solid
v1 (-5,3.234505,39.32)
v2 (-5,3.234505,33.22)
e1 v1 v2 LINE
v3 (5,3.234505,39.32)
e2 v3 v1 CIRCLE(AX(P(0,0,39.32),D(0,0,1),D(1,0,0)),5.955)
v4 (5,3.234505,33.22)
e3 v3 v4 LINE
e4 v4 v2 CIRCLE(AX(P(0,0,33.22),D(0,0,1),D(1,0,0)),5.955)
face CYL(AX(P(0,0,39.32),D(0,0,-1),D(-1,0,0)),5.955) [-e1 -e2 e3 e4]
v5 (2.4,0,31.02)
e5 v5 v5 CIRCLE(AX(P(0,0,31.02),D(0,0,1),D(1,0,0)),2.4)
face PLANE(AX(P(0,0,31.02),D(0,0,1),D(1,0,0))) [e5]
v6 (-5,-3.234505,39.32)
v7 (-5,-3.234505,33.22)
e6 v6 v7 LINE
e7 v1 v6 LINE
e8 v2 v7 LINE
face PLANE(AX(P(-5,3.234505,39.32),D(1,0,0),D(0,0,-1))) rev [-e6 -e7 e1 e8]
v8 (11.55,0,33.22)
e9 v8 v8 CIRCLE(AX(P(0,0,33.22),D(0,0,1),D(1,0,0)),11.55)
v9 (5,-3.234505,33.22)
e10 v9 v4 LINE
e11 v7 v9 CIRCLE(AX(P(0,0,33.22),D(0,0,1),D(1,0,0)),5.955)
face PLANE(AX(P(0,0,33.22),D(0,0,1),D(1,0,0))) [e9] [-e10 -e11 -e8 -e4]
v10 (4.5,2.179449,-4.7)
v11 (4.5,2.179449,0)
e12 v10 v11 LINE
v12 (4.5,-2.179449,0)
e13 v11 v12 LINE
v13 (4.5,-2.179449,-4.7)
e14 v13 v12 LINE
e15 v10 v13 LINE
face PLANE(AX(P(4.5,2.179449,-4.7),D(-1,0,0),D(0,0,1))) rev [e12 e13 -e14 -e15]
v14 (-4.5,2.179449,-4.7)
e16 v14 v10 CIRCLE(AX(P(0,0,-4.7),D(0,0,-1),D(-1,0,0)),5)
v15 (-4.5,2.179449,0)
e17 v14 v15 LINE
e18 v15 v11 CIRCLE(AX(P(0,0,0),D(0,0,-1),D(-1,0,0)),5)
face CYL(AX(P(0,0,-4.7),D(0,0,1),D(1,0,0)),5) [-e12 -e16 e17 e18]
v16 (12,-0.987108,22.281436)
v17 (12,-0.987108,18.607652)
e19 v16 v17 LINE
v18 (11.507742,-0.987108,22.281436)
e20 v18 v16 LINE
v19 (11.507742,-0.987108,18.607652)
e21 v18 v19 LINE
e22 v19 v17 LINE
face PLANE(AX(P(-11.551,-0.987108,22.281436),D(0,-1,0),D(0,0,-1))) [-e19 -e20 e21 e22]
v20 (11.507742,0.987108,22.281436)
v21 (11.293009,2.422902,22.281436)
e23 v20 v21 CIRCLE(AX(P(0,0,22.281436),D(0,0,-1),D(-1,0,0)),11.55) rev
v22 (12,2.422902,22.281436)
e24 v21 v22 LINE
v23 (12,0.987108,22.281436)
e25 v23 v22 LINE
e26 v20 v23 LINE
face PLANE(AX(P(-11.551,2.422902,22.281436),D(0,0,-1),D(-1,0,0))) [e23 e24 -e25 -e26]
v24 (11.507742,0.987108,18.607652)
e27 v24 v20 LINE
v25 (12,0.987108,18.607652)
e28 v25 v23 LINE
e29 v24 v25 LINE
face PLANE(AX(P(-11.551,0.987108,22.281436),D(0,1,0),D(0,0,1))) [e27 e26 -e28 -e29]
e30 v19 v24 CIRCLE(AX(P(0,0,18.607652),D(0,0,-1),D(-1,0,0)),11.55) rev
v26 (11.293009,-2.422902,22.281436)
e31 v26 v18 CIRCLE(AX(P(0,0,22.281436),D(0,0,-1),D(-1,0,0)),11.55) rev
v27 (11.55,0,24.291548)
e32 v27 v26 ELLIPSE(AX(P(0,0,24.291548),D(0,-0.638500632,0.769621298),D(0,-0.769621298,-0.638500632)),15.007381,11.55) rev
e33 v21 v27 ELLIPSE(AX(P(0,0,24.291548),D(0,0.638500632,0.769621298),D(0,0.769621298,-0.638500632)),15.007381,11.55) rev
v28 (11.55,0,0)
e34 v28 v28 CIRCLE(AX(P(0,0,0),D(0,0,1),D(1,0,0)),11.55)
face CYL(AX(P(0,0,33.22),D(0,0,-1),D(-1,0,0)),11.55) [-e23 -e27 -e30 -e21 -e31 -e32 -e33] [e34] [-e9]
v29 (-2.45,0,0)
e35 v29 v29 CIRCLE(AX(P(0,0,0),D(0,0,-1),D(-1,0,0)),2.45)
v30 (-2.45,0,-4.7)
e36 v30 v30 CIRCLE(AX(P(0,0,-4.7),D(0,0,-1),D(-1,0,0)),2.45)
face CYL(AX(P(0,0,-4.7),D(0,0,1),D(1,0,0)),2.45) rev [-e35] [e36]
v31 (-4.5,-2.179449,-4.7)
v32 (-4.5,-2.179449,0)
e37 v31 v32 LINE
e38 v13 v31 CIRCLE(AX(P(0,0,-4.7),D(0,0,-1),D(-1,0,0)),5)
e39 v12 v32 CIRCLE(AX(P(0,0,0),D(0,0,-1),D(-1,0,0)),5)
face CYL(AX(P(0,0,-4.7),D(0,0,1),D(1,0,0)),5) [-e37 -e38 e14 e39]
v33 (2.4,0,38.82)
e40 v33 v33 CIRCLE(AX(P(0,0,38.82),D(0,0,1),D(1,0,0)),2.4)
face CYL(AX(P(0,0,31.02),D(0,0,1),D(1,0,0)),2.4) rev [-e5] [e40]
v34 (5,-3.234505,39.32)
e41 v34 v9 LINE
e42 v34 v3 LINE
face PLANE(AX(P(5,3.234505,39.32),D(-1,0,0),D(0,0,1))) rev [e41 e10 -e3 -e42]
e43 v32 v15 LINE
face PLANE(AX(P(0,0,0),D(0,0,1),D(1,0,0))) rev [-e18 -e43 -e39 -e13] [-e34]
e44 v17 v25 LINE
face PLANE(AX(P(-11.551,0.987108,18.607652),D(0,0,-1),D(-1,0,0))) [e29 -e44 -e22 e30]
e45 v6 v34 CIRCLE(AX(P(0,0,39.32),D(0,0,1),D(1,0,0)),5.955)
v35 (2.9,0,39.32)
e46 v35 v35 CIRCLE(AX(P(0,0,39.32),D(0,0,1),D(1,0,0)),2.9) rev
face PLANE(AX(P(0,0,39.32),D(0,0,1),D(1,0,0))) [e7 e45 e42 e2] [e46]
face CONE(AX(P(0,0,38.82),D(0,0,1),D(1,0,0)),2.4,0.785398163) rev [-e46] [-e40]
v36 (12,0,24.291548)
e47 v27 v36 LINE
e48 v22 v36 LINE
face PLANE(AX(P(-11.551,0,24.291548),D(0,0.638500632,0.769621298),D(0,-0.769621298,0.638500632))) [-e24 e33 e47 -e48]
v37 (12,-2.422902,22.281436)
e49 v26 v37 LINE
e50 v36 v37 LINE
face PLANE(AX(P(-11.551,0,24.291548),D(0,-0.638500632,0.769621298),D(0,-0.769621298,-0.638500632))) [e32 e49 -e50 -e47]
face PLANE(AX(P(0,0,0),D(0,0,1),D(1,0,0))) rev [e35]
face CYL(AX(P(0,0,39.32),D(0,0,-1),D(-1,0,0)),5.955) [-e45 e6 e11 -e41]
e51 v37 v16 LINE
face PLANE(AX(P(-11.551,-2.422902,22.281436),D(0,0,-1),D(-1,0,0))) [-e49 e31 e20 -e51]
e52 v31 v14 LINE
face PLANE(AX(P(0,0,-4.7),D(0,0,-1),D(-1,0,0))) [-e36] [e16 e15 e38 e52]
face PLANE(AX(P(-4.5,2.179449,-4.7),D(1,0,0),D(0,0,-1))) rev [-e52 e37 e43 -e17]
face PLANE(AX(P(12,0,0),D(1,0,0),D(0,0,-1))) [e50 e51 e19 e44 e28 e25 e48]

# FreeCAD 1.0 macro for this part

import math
import FreeCAD as App
import Part
import Sketcher

V = App.Vector


def edges_at(feature, points):
    """Names of the edges that pass closest to the given points."""
    edges = feature.Shape.Edges
    near = lambda p: min(range(len(edges)), key=lambda i: edges[i].distToShape(Part.Vertex(*p))[0])
    return sorted({f"Edge{near(p) + 1}" for p in points})


def add_polygon(sketch, points):
    """Adds a closed chain of lines whose ends are joined by coincident constraints."""
    first, n = sketch.GeometryCount, len(points)
    for a, b in zip(points, points[1:] + points[:1]):
        sketch.addGeometry(Part.LineSegment(App.Vector(*a, 0), App.Vector(*b, 0)), False)
    for i in range(n):
        sketch.addConstraint(Sketcher.Constraint("Coincident", first + i, 2, first + (i + 1) % n, 1))

doc = App.newDocument("Part")
params = doc.addObject("Spreadsheet::Sheet", "Params")
for row, (alias, value) in enumerate([
    ("sketch1_diameter", "23.1 mm"),
    ("pad1_length", "33.22 mm"),
    ("pad2_length", "6.1 mm"),
    ("sketch3_diameter", "4.8 mm"),
    ("pocket1_length", "8.3 mm"),
    ("chamfer_size", "0.5 mm"),
    ("sketch4_radius", "5 mm"),
    ("sketch4_diameter", "4.9 mm"),
    ("pad3_length", "4.7 mm"),
    ("pad4_length", "0.706991 mm"),
], start=1):
    params.set(f"A{row}", alias)
    params.set(f"B{row}", "=" + value)
    params.setAlias(f"B{row}", alias)

body = doc.addObject("PartDesign::Body", "Body")

# Sketch on XY plane
sketch1 = body.newObject("Sketcher::SketchObject", "Sketch")
sketch1.AttachmentSupport = (doc.getObject("XY_Plane"), [""])
sketch1.MapMode = "FlatFace"
sketch1.addGeometry(Part.Circle(V(0, 0, 0), V(0, 0, 1), 12), False)
sketch1.addConstraint([
    Sketcher.Constraint("Coincident", 0, 3, -1, 1),
    Sketcher.Constraint("Diameter", 0, 23.1),
])
sketch1.setExpression("Constraints[1]", "Params.sketch1_diameter")
pad1 = body.newObject("PartDesign::Pad", "Pad")
pad1.Profile = sketch1
pad1.setExpression("Length", "Params.pad1_length")

# Sketch on XY plane
sketch2 = body.newObject("Sketcher::SketchObject", "Sketch001")
sketch2.AttachmentSupport = (doc.getObject("XY_Plane"), [""])
sketch2.MapMode = "FlatFace"
sketch2.AttachmentOffset = App.Placement(V(0, 0, 33.22), App.Rotation())
sketch2.addGeometry([
    Part.LineSegment(V(5, -3, 0), V(5, 3, 0)),
    Part.ArcOfCircle(Part.Circle(V(0, 0, 0), V(0, 0, 1), 6), math.radians(33), math.radians(147)),
    Part.LineSegment(V(-5, 3, 0), V(-5, -3, 0)),
    Part.ArcOfCircle(Part.Circle(V(0, 0, 0), V(0, 0, 1), 6), math.radians(-147), math.radians(-33)),
], False)
sketch2.addConstraint([
    Sketcher.Constraint("Coincident", 0, 2, 1, 1),
    Sketcher.Constraint("Coincident", 1, 2, 2, 1),
    Sketcher.Constraint("Coincident", 2, 2, 3, 1),
    Sketcher.Constraint("Coincident", 3, 2, 0, 1),
    Sketcher.Constraint("Vertical", 0),
    Sketcher.Constraint("Vertical", 2),
    Sketcher.Constraint("Coincident", 1, 3, -1, 1),
    Sketcher.Constraint("Coincident", 3, 3, -1, 1),
    Sketcher.Constraint("Equal", 1, 3),
    Sketcher.Constraint("Horizontal", 0, 2, 1, 2),
    Sketcher.Constraint("DistanceX", -1, 1, 0, 2, 5.0),
    Sketcher.Constraint("Radius", 1, 5.955),
])
pad2 = body.newObject("PartDesign::Pad", "Pad001")
pad2.Profile = sketch2
pad2.setExpression("Length", "Params.pad2_length")

# Sketch on XY plane
sketch3 = body.newObject("Sketcher::SketchObject", "Sketch002")
sketch3.AttachmentSupport = (doc.getObject("XY_Plane"), [""])
sketch3.MapMode = "FlatFace"
sketch3.AttachmentOffset = App.Placement(V(0, 0, 39.32), App.Rotation())
sketch3.addGeometry(Part.Circle(V(0, 0, 0), V(0, 0, 1), 2.4), False)
sketch3.addConstraint([
    Sketcher.Constraint("Coincident", 0, 3, -1, 1),
    Sketcher.Constraint("Diameter", 0, 4.8),
])
sketch3.setExpression("Constraints[1]", "Params.sketch3_diameter")
pocket1 = body.newObject("PartDesign::Pocket", "Pocket")
pocket1.Profile = sketch3
pocket1.setExpression("Length", "Params.pocket1_length")
doc.recompute()

chamfer = body.newObject("PartDesign::Chamfer", "Chamfer")
chamfer.Base = (pocket1, edges_at(pocket1, [(-2.4, 0, 39.32)]))
chamfer.setExpression("Size", "Params.chamfer_size")

# Sketch on XY plane
sketch4 = body.newObject("Sketcher::SketchObject", "Sketch003")
sketch4.AttachmentSupport = (doc.getObject("XY_Plane"), [""])
sketch4.MapMode = "FlatFace"
sketch4.addGeometry([
    Part.LineSegment(V(-4.5, -2.2, 0), V(-4.5, 2.2, 0)),  # 0
    Part.ArcOfCircle(Part.Circle(V(0, 0, 0), V(0, 0, 1), 5), math.radians(26), math.radians(154)),  # 1
    Part.LineSegment(V(4.5, 2.2, 0), V(4.5, -2.2, 0)),  # 2
    Part.ArcOfCircle(Part.Circle(V(0, 0, 0), V(0, 0, 1), 5), math.radians(-154), math.radians(-26)),  # 3
    Part.Circle(V(0, 0, 0), V(0, 0, 1), 2.5),  # 4
], False)
sketch4.addConstraint([
    Sketcher.Constraint("Coincident", 0, 2, 1, 2),
    Sketcher.Constraint("Coincident", 1, 1, 2, 1),
    Sketcher.Constraint("Coincident", 2, 2, 3, 2),
    Sketcher.Constraint("Coincident", 3, 1, 0, 1),
    Sketcher.Constraint("Vertical", 0),
    Sketcher.Constraint("Vertical", 2),
    Sketcher.Constraint("Coincident", 1, 3, -1, 1),
    Sketcher.Constraint("Coincident", 3, 3, -1, 1),
    Sketcher.Constraint("Coincident", 4, 3, -1, 1),
    Sketcher.Constraint("Equal", 1, 3),
    Sketcher.Constraint("Horizontal", 0, 2, 1, 1),
    Sketcher.Constraint("Radius", 1, 5.0),
    Sketcher.Constraint("Diameter", 4, 4.9),
    Sketcher.Constraint("DistanceX", 0, 2, 1, 1, 9.0),
])
sketch4.setExpression("Constraints[11]", "Params.sketch4_radius")
sketch4.setExpression("Constraints[12]", "Params.sketch4_diameter")
pad3 = body.newObject("PartDesign::Pad", "Pad002")
pad3.Profile = sketch4
pad3.setExpression("Length", "Params.pad3_length")
pad3.Reversed = True

# Sketch on YZ plane
sketch5 = body.newObject("Sketcher::SketchObject", "Sketch004")
sketch5.AttachmentSupport = (doc.getObject("YZ_Plane"), [""])
sketch5.MapMode = "FlatFace"
sketch5.AttachmentOffset = App.Placement(V(0, 0, 11.293009), App.Rotation())
add_polygon(sketch5, [(2.4, 22.3), (0, 24.3), (-2.4, 22.3), (-1, 22.3), (-1, 18.6), (1, 18.6), (1, 22.3)])  # lines 0-6
sketch5.addConstraint([
    Sketcher.Constraint("Horizontal", 2),
    Sketcher.Constraint("Vertical", 3),
    Sketcher.Constraint("Horizontal", 4),
    Sketcher.Constraint("Vertical", 5),
    Sketcher.Constraint("Horizontal", 6),
    Sketcher.Constraint("Symmetric", 2, 2, 5, 2, -2),
    Sketcher.Constraint("PointOnObject", 0, 2, -2),
    Sketcher.Constraint("Equal", 2, 6),
    Sketcher.Constraint("DistanceX", 2, 1, 2, 2, 1.435794),
    Sketcher.Constraint("DistanceX", 4, 1, 4, 2, 1.974217),
    Sketcher.Constraint("DistanceY", 3, 2, 3, 1, 3.673784),
    Sketcher.Constraint("DistanceY", 1, 2, 0, 2, 2.010111),
    Sketcher.Constraint("DistanceY", -1, 1, 0, 2, 24.291548),
])
pad4 = body.newObject("PartDesign::Pad", "Pad003")
pad4.Profile = sketch5
pad4.setExpression("Length", "Params.pad4_length")

doc.recompute()
